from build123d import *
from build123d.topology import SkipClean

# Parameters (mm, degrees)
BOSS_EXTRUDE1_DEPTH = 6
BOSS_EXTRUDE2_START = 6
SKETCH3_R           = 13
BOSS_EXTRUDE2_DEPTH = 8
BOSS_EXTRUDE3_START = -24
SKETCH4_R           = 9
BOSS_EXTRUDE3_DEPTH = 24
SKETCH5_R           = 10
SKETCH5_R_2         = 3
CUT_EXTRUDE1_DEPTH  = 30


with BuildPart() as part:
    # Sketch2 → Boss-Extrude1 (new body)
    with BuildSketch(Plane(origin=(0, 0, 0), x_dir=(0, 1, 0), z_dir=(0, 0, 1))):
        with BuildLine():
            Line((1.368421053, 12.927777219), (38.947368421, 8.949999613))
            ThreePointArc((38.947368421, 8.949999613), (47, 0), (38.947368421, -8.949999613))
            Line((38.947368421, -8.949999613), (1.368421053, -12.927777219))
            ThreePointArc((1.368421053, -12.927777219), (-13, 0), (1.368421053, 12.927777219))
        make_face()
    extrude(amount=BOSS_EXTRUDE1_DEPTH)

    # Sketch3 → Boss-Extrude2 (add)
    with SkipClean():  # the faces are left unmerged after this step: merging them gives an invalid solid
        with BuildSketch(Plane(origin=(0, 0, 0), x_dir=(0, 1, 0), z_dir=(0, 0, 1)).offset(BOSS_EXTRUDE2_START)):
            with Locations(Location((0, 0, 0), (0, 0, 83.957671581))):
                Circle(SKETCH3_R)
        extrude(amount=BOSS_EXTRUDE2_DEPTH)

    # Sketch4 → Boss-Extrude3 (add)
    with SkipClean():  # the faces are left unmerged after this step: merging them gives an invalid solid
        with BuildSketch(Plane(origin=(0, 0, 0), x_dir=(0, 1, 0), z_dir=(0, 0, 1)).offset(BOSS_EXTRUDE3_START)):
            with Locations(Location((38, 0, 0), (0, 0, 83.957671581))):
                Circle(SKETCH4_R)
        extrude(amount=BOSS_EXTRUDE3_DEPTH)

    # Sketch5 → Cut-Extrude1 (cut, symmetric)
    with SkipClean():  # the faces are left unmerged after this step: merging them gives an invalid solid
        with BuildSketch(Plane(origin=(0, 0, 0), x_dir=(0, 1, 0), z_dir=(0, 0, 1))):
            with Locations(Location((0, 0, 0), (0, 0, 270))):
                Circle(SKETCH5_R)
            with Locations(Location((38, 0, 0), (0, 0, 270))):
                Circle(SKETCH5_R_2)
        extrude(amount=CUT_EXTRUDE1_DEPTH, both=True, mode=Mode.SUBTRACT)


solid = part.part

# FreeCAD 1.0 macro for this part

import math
import FreeCAD as App
import Part
import Sketcher
Q = App.Units.Quantity

doc = App.newDocument("Part")
body = doc.addObject("PartDesign::Body", "Body")

sketch1 = doc.addObject("Sketcher::SketchObject", "Sketch")
body.addObject(sketch1)
sketch1.AttachmentSupport = (doc.XY_Plane, [""])
sketch1.MapMode = "FlatFace"
sketch1.addGeometry([
    Part.LineSegment(App.Vector(-8.95, 38.947368, 0), App.Vector(-12.927777, 1.368421, 0)),
    Part.ArcOfCircle(Part.Circle(App.Vector(0, 0, 0), App.Vector(0, 0, 1), 13), math.radians(173.957672), math.radians(366.042328)),
    Part.LineSegment(App.Vector(12.927777, 1.368421, 0), App.Vector(8.95, 38.947368, 0)),
    Part.ArcOfCircle(Part.Circle(App.Vector(0, 38, 0), App.Vector(0, 0, 1), 9), math.radians(6.042328), math.radians(173.957672)),
], False)
sketch1.addConstraint([
    Sketcher.Constraint("Tangent", 0, 2, 1, 1),
    Sketcher.Constraint("Tangent", 1, 2, 2, 1),
    Sketcher.Constraint("Tangent", 2, 2, 3, 1),
    Sketcher.Constraint("Tangent", 3, 2, 0, 1),
    Sketcher.Constraint("Coincident", 1, 3, -1, 1),
    Sketcher.Constraint("PointOnObject", 3, 3, -2),
    Sketcher.Constraint("Radius", 1, Q("13 mm")),
    Sketcher.Constraint("Radius", 3, Q("9 mm")),
    Sketcher.Constraint("DistanceY", -1, 1, 3, 3, Q("38 mm")),
])
pad1 = doc.addObject("PartDesign::Pad", "Pad")
body.addObject(pad1)
pad1.Profile = sketch1
pad1.Length = 6

sketch2 = doc.addObject("Sketcher::SketchObject", "Sketch001")
body.addObject(sketch2)
sketch2.AttachmentSupport = (doc.XY_Plane, [""])
sketch2.MapMode = "FlatFace"
sketch2.AttachmentOffset = App.Placement(App.Vector(0, 0, 6), App.Rotation())
sketch2.addGeometry(Part.Circle(App.Vector(0, 0, 0), App.Vector(0, 0, 1), 13), False)
sketch2.addConstraint([
    Sketcher.Constraint("Coincident", 0, 3, -1, 1),
    Sketcher.Constraint("Diameter", 0, Q("26 mm")),
])
pad2 = doc.addObject("PartDesign::Pad", "Pad001")
body.addObject(pad2)
pad2.Profile = sketch2
pad2.Length = 8

sketch3 = doc.addObject("Sketcher::SketchObject", "Sketch002")
body.addObject(sketch3)
sketch3.AttachmentSupport = (doc.XY_Plane, [""])
sketch3.MapMode = "FlatFace"
sketch3.AttachmentOffset = App.Placement(App.Vector(0, 0, -24), App.Rotation())
sketch3.addGeometry(Part.Circle(App.Vector(0, 38, 0), App.Vector(0, 0, 1), 9), False)
sketch3.addConstraint([
    Sketcher.Constraint("PointOnObject", 0, 3, -2),
    Sketcher.Constraint("Diameter", 0, Q("18 mm")),
    Sketcher.Constraint("DistanceY", -1, 1, 0, 3, Q("38 mm")),
])
pad3 = doc.addObject("PartDesign::Pad", "Pad002")
body.addObject(pad3)
pad3.Profile = sketch3
pad3.Length = 24

sketch4 = doc.addObject("Sketcher::SketchObject", "Sketch003")
body.addObject(sketch4)
sketch4.AttachmentSupport = (doc.XY_Plane, [""])
sketch4.MapMode = "FlatFace"
sketch4.addGeometry([
    Part.Circle(App.Vector(0, 0, 0), App.Vector(0, 0, 1), 10),
    Part.Circle(App.Vector(0, 38, 0), App.Vector(0, 0, 1), 3),
], False)
sketch4.addConstraint([
    Sketcher.Constraint("Coincident", 0, 3, -1, 1),
    Sketcher.Constraint("PointOnObject", 1, 3, -2),
    Sketcher.Constraint("Diameter", 0, Q("20 mm")),
    Sketcher.Constraint("Diameter", 1, Q("6 mm")),
    Sketcher.Constraint("DistanceY", -1, 1, 1, 3, Q("38 mm")),
])
pocket1 = doc.addObject("PartDesign::Pocket", "Pocket")
body.addObject(pocket1)
pocket1.Profile = sketch4
pocket1.Length = 60
pocket1.Midplane = True

doc.recompute()
